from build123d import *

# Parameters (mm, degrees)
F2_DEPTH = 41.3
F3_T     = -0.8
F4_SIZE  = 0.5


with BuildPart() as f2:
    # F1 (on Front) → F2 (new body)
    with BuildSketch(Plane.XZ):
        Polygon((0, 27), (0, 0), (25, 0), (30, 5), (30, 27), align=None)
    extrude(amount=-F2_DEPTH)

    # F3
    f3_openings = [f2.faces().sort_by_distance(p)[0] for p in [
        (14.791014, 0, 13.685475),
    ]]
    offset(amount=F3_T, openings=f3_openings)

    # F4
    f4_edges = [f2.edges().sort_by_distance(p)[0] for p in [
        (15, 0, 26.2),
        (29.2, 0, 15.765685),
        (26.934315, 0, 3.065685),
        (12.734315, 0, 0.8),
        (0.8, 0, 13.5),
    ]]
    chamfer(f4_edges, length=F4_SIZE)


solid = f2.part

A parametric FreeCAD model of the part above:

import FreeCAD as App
import Part
import Sketcher
from FreeCAD import Vector


def edges_at(feature, points):
    """Names of the edges that pass closest to the given points."""
    edges = feature.Shape.Edges
    near = lambda p: min(range(len(edges)), key=lambda i: edges[i].distToShape(Part.Vertex(*p))[0])
    return sorted({f"Edge{near(p) + 1}" for p in points})


def faces_at(feature, points):
    """Names of the faces that lie closest to the given points."""
    faces = feature.Shape.Faces
    near = lambda p: min(range(len(faces)), key=lambda i: faces[i].distToShape(Part.Vertex(*p))[0])
    return sorted({f"Face{near(p) + 1}" for p in points})

doc = App.newDocument("Part")
body = doc.addObject("PartDesign::Body", "Body")

# Sketch on XZ plane
sketch1 = body.newObject("Sketcher::SketchObject", "Sketch")
sketch1.AttachmentSupport = (doc.getObject("XZ_Plane"), [""])
sketch1.MapMode = "FlatFace"
sketch1.addGeometry(Part.LineSegment(Vector(0, 27, 0), Vector(0, 0, 0)), False)
sketch1.addGeometry(Part.LineSegment(Vector(0, 0, 0), Vector(25, 0, 0)), False)
sketch1.addGeometry(Part.LineSegment(Vector(25, 0, 0), Vector(30, 5, 0)), False)
sketch1.addGeometry(Part.LineSegment(Vector(30, 5, 0), Vector(30, 27, 0)), False)
sketch1.addGeometry(Part.LineSegment(Vector(30, 27, 0), Vector(0, 27, 0)), False)
sketch1.addConstraint(Sketcher.Constraint("Coincident", 0, 2, 1, 1))
sketch1.addConstraint(Sketcher.Constraint("Coincident", 1, 2, 2, 1))
sketch1.addConstraint(Sketcher.Constraint("Coincident", 2, 2, 3, 1))
sketch1.addConstraint(Sketcher.Constraint("Coincident", 3, 2, 4, 1))
sketch1.addConstraint(Sketcher.Constraint("Coincident", 4, 2, 0, 1))
sketch1.addConstraint(Sketcher.Constraint("Vertical", 0))
sketch1.addConstraint(Sketcher.Constraint("Horizontal", 1))
sketch1.addConstraint(Sketcher.Constraint("Vertical", 3))
sketch1.addConstraint(Sketcher.Constraint("Horizontal", 4))
sketch1.addConstraint(Sketcher.Constraint("Coincident", 0, 2, -1, 1))
sketch1.addConstraint(Sketcher.Constraint("DistanceX", 1, 1, 1, 2, 25.0))
sketch1.addConstraint(Sketcher.Constraint("DistanceX", 4, 2, 4, 1, 30.0))
sketch1.addConstraint(Sketcher.Constraint("DistanceY", 0, 2, 0, 1, 27.0))
sketch1.addConstraint(Sketcher.Constraint("DistanceY", 3, 1, 3, 2, 22.0))
pad1 = body.newObject("PartDesign::Pad", "Pad")
pad1.Profile = sketch1
pad1.Length = 41.3
pad1.Reversed = True
doc.recompute()

thickness = body.newObject("PartDesign::Thickness", "Thickness")
thickness.Base = (pad1, faces_at(pad1, [(15, 0, 13.5)]))
thickness.Value = 0.8
thickness.Reversed = True
thickness.Join = "Arc"
doc.recompute()

chamfer = body.newObject("PartDesign::Chamfer", "Chamfer")
chamfer.Base = (thickness, edges_at(thickness, [
    (15, 0, 26.2),
    (29.2, 0, 15.766),
    (26.934, 0, 3.066),
    (12.734, 0, 0.8),
    (0.8, 0, 13.5),
]))
chamfer.Size = 0.5

doc.recompute()
